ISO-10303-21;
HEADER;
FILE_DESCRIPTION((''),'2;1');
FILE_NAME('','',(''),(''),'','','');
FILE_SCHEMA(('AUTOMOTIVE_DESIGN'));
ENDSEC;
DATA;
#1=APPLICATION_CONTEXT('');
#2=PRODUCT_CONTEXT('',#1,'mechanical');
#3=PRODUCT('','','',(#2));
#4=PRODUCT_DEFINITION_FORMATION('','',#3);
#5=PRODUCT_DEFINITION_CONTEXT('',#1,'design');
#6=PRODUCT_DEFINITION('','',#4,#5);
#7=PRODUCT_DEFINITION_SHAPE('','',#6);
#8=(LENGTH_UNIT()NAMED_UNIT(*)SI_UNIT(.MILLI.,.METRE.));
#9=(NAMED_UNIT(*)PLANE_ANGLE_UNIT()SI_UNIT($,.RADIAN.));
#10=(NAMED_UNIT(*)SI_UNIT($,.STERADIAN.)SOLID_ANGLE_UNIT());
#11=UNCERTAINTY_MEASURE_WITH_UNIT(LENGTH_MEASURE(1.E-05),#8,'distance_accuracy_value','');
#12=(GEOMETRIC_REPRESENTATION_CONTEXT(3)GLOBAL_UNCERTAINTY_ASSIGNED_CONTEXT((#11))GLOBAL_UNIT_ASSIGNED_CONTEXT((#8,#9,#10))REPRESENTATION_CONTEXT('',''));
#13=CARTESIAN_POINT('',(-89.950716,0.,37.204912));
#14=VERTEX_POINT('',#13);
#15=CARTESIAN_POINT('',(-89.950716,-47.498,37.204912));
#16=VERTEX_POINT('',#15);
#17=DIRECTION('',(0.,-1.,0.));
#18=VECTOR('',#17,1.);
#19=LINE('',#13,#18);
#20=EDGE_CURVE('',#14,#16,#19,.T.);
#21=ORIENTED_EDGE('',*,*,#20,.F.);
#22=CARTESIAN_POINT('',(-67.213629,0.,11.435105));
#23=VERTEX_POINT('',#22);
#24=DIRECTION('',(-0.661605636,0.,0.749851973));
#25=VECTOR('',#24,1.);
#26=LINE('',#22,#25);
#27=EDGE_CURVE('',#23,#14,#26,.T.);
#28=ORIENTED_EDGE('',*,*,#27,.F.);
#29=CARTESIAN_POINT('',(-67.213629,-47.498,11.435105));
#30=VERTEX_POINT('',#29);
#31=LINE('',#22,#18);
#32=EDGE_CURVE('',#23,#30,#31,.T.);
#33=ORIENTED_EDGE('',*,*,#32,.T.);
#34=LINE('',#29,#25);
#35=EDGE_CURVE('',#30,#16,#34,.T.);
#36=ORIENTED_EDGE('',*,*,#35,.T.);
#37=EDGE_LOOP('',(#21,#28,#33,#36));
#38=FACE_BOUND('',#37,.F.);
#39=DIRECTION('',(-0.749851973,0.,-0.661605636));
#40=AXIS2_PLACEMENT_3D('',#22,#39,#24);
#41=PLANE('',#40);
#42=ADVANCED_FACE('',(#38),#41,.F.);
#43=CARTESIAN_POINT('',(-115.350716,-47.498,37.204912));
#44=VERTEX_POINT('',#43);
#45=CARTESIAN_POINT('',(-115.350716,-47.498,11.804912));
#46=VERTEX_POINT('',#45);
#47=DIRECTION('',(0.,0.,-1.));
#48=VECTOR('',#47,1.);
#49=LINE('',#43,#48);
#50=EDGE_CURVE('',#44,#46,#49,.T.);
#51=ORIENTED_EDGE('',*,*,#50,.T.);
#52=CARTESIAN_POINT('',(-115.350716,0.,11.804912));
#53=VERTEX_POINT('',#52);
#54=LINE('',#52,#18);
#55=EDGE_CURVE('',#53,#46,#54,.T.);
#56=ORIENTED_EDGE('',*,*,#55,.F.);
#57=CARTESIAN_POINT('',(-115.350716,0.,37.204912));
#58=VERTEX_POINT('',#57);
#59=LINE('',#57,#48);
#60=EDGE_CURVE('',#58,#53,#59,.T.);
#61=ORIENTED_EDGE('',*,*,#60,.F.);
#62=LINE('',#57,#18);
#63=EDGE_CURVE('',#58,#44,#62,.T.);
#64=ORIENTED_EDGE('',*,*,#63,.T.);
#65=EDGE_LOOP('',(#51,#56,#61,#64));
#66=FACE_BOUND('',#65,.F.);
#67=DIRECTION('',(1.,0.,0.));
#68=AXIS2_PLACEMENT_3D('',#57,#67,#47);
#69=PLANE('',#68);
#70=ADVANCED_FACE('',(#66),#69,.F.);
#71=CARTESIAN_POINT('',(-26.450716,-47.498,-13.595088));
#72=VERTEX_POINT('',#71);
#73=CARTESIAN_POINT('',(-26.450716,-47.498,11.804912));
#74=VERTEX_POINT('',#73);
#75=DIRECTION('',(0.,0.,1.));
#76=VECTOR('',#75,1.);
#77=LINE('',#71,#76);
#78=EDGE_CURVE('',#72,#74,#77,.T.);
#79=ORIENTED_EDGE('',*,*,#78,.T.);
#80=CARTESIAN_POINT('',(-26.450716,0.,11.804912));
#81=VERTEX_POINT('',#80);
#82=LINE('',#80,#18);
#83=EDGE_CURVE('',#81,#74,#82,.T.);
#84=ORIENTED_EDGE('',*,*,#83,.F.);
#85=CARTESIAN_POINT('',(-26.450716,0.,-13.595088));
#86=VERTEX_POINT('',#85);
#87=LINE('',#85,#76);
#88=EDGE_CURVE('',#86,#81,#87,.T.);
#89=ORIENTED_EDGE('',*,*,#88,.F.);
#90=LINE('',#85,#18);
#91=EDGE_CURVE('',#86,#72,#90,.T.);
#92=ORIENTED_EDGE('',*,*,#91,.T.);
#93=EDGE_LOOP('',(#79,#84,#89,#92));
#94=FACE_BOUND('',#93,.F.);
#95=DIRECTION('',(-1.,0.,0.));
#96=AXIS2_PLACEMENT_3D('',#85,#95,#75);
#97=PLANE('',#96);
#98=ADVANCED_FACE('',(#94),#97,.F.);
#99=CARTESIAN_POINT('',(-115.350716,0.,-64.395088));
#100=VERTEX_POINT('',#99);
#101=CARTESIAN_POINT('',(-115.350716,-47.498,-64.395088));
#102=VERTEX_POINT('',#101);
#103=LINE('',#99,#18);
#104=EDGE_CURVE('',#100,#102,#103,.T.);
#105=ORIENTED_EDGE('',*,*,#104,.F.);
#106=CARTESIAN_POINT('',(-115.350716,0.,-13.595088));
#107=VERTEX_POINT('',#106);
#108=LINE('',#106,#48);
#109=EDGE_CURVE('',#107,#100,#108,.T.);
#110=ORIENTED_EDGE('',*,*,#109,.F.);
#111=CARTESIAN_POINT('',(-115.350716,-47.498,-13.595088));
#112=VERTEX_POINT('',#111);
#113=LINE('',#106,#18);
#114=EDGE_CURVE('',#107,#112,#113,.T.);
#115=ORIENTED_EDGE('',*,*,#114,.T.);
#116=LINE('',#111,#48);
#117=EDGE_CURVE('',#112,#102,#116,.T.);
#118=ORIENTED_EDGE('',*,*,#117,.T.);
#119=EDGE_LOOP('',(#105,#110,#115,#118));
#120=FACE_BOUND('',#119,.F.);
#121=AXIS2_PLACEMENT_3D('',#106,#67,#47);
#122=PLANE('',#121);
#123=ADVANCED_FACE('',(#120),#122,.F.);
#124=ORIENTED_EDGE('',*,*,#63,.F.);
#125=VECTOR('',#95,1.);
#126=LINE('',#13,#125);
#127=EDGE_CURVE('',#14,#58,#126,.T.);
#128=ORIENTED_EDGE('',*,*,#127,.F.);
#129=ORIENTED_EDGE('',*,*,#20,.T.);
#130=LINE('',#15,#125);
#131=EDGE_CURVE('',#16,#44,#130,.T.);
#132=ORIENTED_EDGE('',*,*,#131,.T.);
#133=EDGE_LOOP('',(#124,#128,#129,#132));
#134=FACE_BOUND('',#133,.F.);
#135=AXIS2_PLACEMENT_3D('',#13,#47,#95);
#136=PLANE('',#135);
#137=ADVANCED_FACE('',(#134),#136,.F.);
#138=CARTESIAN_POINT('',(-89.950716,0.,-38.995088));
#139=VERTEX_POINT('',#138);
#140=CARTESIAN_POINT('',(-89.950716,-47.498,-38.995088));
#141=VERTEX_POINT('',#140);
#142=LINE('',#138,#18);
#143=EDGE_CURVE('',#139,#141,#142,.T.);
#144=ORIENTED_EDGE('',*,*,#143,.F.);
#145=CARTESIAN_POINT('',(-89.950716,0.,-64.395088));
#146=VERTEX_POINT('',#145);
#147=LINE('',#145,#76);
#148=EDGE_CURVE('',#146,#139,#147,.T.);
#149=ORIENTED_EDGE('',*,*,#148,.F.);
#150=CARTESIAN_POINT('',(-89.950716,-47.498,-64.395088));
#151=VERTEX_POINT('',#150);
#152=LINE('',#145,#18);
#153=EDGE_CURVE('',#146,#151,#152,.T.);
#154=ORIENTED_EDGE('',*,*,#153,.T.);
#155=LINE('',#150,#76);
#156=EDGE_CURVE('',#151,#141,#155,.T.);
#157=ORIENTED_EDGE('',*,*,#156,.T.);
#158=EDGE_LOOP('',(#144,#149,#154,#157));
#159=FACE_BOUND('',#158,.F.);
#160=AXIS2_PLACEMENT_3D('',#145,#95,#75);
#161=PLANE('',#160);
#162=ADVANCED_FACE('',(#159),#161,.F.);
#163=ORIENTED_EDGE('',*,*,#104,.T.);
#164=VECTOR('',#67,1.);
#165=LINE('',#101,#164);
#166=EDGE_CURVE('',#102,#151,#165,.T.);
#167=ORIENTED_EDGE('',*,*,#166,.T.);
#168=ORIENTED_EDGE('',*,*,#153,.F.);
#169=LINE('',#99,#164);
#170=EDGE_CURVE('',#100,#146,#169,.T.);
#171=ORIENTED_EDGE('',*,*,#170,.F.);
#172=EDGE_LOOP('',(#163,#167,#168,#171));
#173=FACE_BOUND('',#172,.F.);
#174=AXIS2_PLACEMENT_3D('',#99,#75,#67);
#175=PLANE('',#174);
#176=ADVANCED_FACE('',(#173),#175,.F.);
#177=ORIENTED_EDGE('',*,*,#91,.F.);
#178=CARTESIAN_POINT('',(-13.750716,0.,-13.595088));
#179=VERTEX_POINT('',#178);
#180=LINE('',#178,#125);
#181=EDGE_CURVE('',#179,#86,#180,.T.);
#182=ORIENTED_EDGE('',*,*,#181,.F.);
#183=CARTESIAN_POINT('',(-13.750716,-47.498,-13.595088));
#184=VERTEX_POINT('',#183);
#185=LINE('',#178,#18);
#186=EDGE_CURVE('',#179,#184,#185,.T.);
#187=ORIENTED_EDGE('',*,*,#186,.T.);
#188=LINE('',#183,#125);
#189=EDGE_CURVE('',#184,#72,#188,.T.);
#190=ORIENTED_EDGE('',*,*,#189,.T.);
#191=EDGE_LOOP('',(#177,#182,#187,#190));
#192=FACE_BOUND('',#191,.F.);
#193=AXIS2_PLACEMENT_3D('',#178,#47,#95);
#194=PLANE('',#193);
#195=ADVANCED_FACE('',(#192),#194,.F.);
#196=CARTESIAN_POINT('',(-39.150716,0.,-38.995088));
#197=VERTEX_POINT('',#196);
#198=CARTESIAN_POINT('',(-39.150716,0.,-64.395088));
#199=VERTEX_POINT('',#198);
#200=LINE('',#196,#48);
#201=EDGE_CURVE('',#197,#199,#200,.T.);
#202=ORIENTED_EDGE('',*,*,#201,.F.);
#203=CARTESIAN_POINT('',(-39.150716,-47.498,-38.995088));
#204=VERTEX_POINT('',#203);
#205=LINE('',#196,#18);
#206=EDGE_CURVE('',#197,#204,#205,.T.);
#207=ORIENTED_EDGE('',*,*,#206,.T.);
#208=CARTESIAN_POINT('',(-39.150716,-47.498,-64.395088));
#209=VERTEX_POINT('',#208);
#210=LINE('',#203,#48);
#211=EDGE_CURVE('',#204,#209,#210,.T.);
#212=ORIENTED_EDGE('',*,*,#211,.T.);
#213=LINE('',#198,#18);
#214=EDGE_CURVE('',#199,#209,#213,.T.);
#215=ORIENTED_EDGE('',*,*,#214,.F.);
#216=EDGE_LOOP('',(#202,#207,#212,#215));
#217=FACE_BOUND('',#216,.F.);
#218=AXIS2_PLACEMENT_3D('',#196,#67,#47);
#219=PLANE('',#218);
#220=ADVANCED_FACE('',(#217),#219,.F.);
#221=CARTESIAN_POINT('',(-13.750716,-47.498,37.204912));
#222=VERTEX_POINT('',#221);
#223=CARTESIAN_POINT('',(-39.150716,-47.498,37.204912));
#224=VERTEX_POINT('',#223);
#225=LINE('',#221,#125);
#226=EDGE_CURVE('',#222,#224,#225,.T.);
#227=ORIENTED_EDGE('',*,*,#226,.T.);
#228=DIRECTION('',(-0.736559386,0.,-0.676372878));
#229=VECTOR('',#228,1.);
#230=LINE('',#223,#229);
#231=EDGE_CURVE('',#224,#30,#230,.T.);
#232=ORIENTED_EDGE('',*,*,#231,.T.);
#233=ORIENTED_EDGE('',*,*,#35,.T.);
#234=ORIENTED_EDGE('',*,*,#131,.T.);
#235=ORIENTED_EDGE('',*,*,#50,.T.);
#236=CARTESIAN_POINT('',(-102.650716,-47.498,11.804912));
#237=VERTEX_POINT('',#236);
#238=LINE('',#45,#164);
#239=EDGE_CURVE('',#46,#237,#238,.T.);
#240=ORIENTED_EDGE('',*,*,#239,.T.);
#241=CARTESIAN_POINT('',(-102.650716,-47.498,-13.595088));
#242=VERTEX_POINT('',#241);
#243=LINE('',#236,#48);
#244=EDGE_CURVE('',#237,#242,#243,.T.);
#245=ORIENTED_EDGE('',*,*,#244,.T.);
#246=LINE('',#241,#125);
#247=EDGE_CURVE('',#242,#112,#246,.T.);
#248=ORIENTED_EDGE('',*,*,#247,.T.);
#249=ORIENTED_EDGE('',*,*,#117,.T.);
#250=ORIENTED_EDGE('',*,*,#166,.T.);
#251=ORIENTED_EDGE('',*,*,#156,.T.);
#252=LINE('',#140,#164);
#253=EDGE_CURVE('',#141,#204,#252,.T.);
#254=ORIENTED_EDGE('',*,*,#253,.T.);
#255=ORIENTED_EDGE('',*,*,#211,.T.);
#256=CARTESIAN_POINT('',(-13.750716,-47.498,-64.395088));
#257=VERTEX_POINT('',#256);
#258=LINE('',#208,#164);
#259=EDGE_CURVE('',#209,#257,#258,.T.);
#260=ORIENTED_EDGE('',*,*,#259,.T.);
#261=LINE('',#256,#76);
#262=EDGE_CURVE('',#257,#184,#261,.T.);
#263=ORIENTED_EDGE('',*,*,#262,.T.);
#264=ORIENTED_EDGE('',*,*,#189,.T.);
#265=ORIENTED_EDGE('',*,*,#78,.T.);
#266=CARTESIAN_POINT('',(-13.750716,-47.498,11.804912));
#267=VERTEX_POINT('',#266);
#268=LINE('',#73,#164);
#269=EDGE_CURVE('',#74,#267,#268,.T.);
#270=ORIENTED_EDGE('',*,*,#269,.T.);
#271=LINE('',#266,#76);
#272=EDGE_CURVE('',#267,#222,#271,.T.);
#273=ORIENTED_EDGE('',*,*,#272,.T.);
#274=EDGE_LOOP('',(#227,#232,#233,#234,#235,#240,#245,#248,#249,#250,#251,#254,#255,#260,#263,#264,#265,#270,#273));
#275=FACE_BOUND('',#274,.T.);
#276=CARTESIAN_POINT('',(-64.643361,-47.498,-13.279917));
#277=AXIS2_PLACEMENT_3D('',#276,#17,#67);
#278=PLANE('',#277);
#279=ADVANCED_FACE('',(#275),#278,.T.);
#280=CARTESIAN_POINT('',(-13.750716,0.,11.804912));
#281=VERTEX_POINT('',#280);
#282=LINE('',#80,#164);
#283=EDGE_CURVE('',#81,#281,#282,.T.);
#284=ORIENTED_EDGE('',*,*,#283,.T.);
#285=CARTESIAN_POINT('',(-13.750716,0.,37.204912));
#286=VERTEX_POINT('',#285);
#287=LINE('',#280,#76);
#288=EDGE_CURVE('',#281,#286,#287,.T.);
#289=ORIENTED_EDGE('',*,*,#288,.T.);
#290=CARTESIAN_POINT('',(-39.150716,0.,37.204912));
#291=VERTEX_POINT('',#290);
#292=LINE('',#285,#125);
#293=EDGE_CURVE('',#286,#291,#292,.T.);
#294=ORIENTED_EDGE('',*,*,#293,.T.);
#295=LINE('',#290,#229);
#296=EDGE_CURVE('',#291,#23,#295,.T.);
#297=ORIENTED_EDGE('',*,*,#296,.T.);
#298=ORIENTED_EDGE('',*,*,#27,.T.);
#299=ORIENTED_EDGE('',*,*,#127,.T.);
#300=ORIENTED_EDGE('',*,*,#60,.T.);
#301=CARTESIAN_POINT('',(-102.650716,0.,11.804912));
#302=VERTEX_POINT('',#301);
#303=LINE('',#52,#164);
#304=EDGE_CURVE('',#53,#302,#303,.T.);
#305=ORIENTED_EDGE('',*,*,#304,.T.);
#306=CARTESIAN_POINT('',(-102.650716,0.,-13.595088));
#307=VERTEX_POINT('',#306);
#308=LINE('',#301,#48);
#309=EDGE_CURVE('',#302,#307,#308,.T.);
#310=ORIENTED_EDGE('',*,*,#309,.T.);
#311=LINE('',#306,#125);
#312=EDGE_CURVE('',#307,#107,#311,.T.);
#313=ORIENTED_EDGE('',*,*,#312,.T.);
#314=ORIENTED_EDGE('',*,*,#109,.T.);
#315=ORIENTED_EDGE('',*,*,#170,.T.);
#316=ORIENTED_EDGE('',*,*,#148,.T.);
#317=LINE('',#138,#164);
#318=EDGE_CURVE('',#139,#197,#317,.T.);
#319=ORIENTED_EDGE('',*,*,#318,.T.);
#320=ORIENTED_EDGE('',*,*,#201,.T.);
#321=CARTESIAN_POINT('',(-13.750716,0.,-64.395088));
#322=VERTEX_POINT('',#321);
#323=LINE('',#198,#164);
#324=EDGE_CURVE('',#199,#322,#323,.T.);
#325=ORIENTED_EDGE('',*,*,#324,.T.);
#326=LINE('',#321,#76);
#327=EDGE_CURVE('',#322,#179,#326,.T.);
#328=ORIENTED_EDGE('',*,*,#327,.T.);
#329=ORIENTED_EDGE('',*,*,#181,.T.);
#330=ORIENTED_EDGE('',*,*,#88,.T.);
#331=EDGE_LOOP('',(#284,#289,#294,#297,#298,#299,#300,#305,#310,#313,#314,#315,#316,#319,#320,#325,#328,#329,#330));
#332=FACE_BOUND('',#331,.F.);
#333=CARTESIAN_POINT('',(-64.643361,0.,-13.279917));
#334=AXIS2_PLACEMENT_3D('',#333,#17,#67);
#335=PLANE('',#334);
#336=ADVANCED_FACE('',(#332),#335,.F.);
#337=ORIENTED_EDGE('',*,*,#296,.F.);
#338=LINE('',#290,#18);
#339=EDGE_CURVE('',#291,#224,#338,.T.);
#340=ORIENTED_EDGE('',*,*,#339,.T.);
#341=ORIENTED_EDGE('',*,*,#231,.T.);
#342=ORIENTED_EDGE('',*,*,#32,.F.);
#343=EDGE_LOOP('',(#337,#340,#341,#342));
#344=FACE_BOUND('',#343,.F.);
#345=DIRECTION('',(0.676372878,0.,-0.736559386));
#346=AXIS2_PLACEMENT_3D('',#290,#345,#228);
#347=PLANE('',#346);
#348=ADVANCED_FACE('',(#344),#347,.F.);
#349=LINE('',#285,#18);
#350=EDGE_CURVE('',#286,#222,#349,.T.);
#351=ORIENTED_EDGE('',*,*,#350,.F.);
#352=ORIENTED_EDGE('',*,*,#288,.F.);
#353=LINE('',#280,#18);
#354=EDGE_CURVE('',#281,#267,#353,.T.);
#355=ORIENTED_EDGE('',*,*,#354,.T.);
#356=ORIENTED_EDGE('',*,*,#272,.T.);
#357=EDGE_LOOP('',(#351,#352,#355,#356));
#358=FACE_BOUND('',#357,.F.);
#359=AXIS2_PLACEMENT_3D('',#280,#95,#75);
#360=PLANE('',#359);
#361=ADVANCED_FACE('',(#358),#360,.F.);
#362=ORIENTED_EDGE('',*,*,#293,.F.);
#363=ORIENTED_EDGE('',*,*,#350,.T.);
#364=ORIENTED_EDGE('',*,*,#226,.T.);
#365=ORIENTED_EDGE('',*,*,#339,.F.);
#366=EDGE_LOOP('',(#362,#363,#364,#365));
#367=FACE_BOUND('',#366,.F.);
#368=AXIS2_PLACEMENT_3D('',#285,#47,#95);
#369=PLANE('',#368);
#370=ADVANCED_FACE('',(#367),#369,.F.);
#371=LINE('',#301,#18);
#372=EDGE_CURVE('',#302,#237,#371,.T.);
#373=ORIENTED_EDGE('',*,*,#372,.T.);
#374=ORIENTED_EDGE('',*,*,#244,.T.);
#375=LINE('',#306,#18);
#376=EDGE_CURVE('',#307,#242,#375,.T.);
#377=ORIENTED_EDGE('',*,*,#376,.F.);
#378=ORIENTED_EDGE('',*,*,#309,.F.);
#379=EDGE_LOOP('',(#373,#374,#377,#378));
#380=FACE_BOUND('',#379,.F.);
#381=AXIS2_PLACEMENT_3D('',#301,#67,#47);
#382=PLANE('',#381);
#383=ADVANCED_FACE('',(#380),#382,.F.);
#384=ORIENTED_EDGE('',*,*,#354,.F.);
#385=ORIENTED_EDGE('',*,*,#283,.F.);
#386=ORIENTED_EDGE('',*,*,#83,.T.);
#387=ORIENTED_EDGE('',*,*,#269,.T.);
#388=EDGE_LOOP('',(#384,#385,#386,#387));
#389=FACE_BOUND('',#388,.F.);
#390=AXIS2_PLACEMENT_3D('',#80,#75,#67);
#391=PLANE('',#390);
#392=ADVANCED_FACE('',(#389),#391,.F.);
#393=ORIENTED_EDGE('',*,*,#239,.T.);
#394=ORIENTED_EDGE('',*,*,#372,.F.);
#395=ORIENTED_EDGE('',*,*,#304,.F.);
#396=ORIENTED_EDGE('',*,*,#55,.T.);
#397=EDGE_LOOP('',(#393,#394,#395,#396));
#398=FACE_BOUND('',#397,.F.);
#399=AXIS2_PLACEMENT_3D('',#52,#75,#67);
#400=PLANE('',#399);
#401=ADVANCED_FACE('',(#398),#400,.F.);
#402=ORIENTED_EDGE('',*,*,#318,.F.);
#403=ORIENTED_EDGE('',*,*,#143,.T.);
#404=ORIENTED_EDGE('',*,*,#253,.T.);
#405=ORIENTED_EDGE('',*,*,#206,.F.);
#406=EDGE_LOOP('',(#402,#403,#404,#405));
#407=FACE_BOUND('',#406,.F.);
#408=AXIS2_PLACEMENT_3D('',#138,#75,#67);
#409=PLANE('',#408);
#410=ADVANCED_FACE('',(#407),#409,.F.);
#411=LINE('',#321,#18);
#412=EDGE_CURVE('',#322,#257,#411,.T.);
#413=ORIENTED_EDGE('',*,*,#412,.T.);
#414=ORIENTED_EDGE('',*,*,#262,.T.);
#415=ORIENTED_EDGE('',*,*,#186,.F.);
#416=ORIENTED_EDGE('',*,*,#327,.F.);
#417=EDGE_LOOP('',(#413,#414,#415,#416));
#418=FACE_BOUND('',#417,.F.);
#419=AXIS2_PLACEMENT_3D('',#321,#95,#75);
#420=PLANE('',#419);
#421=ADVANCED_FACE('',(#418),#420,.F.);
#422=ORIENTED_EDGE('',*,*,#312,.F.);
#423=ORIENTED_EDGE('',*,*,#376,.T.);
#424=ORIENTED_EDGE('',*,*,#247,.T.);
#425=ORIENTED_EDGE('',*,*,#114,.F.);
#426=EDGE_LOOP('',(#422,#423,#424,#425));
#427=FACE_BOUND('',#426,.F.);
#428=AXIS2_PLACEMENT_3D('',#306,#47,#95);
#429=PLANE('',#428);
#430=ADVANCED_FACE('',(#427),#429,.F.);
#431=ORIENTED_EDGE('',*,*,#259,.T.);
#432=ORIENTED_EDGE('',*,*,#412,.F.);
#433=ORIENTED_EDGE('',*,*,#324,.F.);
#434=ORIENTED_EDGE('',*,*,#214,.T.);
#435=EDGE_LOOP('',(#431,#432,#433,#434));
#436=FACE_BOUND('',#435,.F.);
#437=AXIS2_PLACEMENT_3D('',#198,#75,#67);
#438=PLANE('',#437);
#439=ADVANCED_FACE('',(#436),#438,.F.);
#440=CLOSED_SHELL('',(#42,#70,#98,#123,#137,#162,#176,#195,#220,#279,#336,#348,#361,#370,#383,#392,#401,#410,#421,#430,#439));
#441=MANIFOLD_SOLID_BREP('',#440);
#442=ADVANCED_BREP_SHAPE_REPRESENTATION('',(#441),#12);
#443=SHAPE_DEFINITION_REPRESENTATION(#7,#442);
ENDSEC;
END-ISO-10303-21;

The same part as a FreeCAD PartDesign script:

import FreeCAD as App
import Part
import Sketcher
from FreeCAD import Vector
Q = App.Units.Quantity

doc = App.newDocument("Part")
body = doc.addObject("PartDesign::Body", "Body")

# Sketch on XZ plane
sketch1 = body.newObject("Sketcher::SketchObject", "Sketch")
sketch1.AttachmentSupport = (doc.getObject("XZ_Plane"), [""])
sketch1.MapMode = "FlatFace"
sketch1.addGeometry(Part.LineSegment(Vector(-26, 12, 0), Vector(-14, 12, 0)), False)
sketch1.addGeometry(Part.LineSegment(Vector(-14, 12, 0), Vector(-14, 37, 0)), False)
sketch1.addGeometry(Part.LineSegment(Vector(-14, 37, 0), Vector(-39, 37, 0)), False)
sketch1.addGeometry(Part.LineSegment(Vector(-39, 37, 0), Vector(-67, 11, 0)), False)
sketch1.addGeometry(Part.LineSegment(Vector(-67, 11, 0), Vector(-90, 37, 0)), False)
sketch1.addGeometry(Part.LineSegment(Vector(-90, 37, 0), Vector(-115, 37, 0)), False)
sketch1.addGeometry(Part.LineSegment(Vector(-115, 37, 0), Vector(-115, 12, 0)), False)
sketch1.addGeometry(Part.LineSegment(Vector(-115, 12, 0), Vector(-103, 12, 0)), False)
sketch1.addGeometry(Part.LineSegment(Vector(-103, 12, 0), Vector(-103, -14, 0)), False)
sketch1.addGeometry(Part.LineSegment(Vector(-103, -14, 0), Vector(-115, -14, 0)), False)
sketch1.addGeometry(Part.LineSegment(Vector(-115, -14, 0), Vector(-115, -64, 0)), False)
sketch1.addGeometry(Part.LineSegment(Vector(-115, -64, 0), Vector(-90, -64, 0)), False)
sketch1.addGeometry(Part.LineSegment(Vector(-90, -64, 0), Vector(-90, -39, 0)), False)
sketch1.addGeometry(Part.LineSegment(Vector(-90, -39, 0), Vector(-39, -39, 0)), False)
sketch1.addGeometry(Part.LineSegment(Vector(-39, -39, 0), Vector(-39, -64, 0)), False)
sketch1.addGeometry(Part.LineSegment(Vector(-39, -64, 0), Vector(-14, -64, 0)), False)
sketch1.addGeometry(Part.LineSegment(Vector(-14, -64, 0), Vector(-14, -14, 0)), False)
sketch1.addGeometry(Part.LineSegment(Vector(-14, -14, 0), Vector(-26, -14, 0)), False)
sketch1.addGeometry(Part.LineSegment(Vector(-26, -14, 0), Vector(-26, 12, 0)), False)
sketch1.addConstraint(Sketcher.Constraint("Coincident", 0, 2, 1, 1))
sketch1.addConstraint(Sketcher.Constraint("Coincident", 1, 2, 2, 1))
sketch1.addConstraint(Sketcher.Constraint("Coincident", 2, 2, 3, 1))
sketch1.addConstraint(Sketcher.Constraint("Coincident", 3, 2, 4, 1))
sketch1.addConstraint(Sketcher.Constraint("Coincident", 4, 2, 5, 1))
sketch1.addConstraint(Sketcher.Constraint("Coincident", 5, 2, 6, 1))
sketch1.addConstraint(Sketcher.Constraint("Coincident", 6, 2, 7, 1))
sketch1.addConstraint(Sketcher.Constraint("Coincident", 7, 2, 8, 1))
sketch1.addConstraint(Sketcher.Constraint("Coincident", 8, 2, 9, 1))
sketch1.addConstraint(Sketcher.Constraint("Coincident", 9, 2, 10, 1))
sketch1.addConstraint(Sketcher.Constraint("Coincident", 10, 2, 11, 1))
sketch1.addConstraint(Sketcher.Constraint("Coincident", 11, 2, 12, 1))
sketch1.addConstraint(Sketcher.Constraint("Coincident", 12, 2, 13, 1))
sketch1.addConstraint(Sketcher.Constraint("Coincident", 13, 2, 14, 1))
sketch1.addConstraint(Sketcher.Constraint("Coincident", 14, 2, 15, 1))
sketch1.addConstraint(Sketcher.Constraint("Coincident", 15, 2, 16, 1))
sketch1.addConstraint(Sketcher.Constraint("Coincident", 16, 2, 17, 1))
sketch1.addConstraint(Sketcher.Constraint("Coincident", 17, 2, 18, 1))
sketch1.addConstraint(Sketcher.Constraint("Coincident", 18, 2, 0, 1))
sketch1.addConstraint(Sketcher.Constraint("Horizontal", 0))
sketch1.addConstraint(Sketcher.Constraint("Vertical", 1))
sketch1.addConstraint(Sketcher.Constraint("Horizontal", 2))
sketch1.addConstraint(Sketcher.Constraint("Horizontal", 5))
sketch1.addConstraint(Sketcher.Constraint("Vertical", 6))
sketch1.addConstraint(Sketcher.Constraint("Horizontal", 7))
sketch1.addConstraint(Sketcher.Constraint("Vertical", 8))
sketch1.addConstraint(Sketcher.Constraint("Horizontal", 9))
sketch1.addConstraint(Sketcher.Constraint("Vertical", 10))
sketch1.addConstraint(Sketcher.Constraint("Horizontal", 11))
sketch1.addConstraint(Sketcher.Constraint("Vertical", 12))
sketch1.addConstraint(Sketcher.Constraint("Horizontal", 13))
sketch1.addConstraint(Sketcher.Constraint("Vertical", 14))
sketch1.addConstraint(Sketcher.Constraint("Horizontal", 15))
sketch1.addConstraint(Sketcher.Constraint("Vertical", 16))
sketch1.addConstraint(Sketcher.Constraint("Horizontal", 17))
sketch1.addConstraint(Sketcher.Constraint("Vertical", 18))
sketch1.addConstraint(Sketcher.Constraint("Horizontal", 2, 2, 4, 2))
sketch1.addConstraint(Sketcher.Constraint("Horizontal", 0, 2, 6, 2))
sketch1.addConstraint(Sketcher.Constraint("Horizontal", 11, 2, 14, 2))
sketch1.addConstraint(Sketcher.Constraint("Horizontal", 9, 2, 16, 2))
sketch1.addConstraint(Sketcher.Constraint("Vertical", 6, 2, 9, 2))
sketch1.addConstraint(Sketcher.Constraint("Vertical", 4, 2, 11, 2))
sketch1.addConstraint(Sketcher.Constraint("Vertical", 2, 2, 13, 2))
sketch1.addConstraint(Sketcher.Constraint("Vertical", 1, 2, 15, 2))
sketch1.addConstraint(Sketcher.Constraint("Equal", 2, 5))
sketch1.addConstraint(Sketcher.Constraint("Equal", 0, 7))
sketch1.addConstraint(Sketcher.Constraint("Equal", 15, 1))
sketch1.addConstraint(Sketcher.Constraint("Equal", 6, 8))
sketch1.addConstraint(Sketcher.Constraint("Equal", 13, 10))
sketch1.addConstraint(Sketcher.Constraint("Equal", 8, 12))
sketch1.addConstraint(Sketcher.Constraint("DistanceX", 2, 2, 2, 1, Q("1 in")))
sketch1.addConstraint(Sketcher.Constraint("DistanceX", 13, 1, 13, 2, Q("2 in")))
sketch1.addConstraint(Sketcher.Constraint("DistanceX", 0, 1, 0, 2, Q("0.5 in")))
sketch1.addConstraint(Sketcher.Constraint("Distance", 3, Q("1.5 in")))
sketch1.addConstraint(Sketcher.Constraint("DistanceX", 3, 2, -1, 1, Q("67.213629 mm")))
sketch1.addConstraint(Sketcher.Constraint("DistanceY", 10, 2, -1, 1, Q("64.395088 mm")))
sketch1.addConstraint(Sketcher.Constraint("Distance", 4, Q("34.366526 mm")))
pad1 = body.newObject("PartDesign::Pad", "Pad")
pad1.Profile = sketch1
pad1.Length = Q("1.87 in")

doc.recompute()
